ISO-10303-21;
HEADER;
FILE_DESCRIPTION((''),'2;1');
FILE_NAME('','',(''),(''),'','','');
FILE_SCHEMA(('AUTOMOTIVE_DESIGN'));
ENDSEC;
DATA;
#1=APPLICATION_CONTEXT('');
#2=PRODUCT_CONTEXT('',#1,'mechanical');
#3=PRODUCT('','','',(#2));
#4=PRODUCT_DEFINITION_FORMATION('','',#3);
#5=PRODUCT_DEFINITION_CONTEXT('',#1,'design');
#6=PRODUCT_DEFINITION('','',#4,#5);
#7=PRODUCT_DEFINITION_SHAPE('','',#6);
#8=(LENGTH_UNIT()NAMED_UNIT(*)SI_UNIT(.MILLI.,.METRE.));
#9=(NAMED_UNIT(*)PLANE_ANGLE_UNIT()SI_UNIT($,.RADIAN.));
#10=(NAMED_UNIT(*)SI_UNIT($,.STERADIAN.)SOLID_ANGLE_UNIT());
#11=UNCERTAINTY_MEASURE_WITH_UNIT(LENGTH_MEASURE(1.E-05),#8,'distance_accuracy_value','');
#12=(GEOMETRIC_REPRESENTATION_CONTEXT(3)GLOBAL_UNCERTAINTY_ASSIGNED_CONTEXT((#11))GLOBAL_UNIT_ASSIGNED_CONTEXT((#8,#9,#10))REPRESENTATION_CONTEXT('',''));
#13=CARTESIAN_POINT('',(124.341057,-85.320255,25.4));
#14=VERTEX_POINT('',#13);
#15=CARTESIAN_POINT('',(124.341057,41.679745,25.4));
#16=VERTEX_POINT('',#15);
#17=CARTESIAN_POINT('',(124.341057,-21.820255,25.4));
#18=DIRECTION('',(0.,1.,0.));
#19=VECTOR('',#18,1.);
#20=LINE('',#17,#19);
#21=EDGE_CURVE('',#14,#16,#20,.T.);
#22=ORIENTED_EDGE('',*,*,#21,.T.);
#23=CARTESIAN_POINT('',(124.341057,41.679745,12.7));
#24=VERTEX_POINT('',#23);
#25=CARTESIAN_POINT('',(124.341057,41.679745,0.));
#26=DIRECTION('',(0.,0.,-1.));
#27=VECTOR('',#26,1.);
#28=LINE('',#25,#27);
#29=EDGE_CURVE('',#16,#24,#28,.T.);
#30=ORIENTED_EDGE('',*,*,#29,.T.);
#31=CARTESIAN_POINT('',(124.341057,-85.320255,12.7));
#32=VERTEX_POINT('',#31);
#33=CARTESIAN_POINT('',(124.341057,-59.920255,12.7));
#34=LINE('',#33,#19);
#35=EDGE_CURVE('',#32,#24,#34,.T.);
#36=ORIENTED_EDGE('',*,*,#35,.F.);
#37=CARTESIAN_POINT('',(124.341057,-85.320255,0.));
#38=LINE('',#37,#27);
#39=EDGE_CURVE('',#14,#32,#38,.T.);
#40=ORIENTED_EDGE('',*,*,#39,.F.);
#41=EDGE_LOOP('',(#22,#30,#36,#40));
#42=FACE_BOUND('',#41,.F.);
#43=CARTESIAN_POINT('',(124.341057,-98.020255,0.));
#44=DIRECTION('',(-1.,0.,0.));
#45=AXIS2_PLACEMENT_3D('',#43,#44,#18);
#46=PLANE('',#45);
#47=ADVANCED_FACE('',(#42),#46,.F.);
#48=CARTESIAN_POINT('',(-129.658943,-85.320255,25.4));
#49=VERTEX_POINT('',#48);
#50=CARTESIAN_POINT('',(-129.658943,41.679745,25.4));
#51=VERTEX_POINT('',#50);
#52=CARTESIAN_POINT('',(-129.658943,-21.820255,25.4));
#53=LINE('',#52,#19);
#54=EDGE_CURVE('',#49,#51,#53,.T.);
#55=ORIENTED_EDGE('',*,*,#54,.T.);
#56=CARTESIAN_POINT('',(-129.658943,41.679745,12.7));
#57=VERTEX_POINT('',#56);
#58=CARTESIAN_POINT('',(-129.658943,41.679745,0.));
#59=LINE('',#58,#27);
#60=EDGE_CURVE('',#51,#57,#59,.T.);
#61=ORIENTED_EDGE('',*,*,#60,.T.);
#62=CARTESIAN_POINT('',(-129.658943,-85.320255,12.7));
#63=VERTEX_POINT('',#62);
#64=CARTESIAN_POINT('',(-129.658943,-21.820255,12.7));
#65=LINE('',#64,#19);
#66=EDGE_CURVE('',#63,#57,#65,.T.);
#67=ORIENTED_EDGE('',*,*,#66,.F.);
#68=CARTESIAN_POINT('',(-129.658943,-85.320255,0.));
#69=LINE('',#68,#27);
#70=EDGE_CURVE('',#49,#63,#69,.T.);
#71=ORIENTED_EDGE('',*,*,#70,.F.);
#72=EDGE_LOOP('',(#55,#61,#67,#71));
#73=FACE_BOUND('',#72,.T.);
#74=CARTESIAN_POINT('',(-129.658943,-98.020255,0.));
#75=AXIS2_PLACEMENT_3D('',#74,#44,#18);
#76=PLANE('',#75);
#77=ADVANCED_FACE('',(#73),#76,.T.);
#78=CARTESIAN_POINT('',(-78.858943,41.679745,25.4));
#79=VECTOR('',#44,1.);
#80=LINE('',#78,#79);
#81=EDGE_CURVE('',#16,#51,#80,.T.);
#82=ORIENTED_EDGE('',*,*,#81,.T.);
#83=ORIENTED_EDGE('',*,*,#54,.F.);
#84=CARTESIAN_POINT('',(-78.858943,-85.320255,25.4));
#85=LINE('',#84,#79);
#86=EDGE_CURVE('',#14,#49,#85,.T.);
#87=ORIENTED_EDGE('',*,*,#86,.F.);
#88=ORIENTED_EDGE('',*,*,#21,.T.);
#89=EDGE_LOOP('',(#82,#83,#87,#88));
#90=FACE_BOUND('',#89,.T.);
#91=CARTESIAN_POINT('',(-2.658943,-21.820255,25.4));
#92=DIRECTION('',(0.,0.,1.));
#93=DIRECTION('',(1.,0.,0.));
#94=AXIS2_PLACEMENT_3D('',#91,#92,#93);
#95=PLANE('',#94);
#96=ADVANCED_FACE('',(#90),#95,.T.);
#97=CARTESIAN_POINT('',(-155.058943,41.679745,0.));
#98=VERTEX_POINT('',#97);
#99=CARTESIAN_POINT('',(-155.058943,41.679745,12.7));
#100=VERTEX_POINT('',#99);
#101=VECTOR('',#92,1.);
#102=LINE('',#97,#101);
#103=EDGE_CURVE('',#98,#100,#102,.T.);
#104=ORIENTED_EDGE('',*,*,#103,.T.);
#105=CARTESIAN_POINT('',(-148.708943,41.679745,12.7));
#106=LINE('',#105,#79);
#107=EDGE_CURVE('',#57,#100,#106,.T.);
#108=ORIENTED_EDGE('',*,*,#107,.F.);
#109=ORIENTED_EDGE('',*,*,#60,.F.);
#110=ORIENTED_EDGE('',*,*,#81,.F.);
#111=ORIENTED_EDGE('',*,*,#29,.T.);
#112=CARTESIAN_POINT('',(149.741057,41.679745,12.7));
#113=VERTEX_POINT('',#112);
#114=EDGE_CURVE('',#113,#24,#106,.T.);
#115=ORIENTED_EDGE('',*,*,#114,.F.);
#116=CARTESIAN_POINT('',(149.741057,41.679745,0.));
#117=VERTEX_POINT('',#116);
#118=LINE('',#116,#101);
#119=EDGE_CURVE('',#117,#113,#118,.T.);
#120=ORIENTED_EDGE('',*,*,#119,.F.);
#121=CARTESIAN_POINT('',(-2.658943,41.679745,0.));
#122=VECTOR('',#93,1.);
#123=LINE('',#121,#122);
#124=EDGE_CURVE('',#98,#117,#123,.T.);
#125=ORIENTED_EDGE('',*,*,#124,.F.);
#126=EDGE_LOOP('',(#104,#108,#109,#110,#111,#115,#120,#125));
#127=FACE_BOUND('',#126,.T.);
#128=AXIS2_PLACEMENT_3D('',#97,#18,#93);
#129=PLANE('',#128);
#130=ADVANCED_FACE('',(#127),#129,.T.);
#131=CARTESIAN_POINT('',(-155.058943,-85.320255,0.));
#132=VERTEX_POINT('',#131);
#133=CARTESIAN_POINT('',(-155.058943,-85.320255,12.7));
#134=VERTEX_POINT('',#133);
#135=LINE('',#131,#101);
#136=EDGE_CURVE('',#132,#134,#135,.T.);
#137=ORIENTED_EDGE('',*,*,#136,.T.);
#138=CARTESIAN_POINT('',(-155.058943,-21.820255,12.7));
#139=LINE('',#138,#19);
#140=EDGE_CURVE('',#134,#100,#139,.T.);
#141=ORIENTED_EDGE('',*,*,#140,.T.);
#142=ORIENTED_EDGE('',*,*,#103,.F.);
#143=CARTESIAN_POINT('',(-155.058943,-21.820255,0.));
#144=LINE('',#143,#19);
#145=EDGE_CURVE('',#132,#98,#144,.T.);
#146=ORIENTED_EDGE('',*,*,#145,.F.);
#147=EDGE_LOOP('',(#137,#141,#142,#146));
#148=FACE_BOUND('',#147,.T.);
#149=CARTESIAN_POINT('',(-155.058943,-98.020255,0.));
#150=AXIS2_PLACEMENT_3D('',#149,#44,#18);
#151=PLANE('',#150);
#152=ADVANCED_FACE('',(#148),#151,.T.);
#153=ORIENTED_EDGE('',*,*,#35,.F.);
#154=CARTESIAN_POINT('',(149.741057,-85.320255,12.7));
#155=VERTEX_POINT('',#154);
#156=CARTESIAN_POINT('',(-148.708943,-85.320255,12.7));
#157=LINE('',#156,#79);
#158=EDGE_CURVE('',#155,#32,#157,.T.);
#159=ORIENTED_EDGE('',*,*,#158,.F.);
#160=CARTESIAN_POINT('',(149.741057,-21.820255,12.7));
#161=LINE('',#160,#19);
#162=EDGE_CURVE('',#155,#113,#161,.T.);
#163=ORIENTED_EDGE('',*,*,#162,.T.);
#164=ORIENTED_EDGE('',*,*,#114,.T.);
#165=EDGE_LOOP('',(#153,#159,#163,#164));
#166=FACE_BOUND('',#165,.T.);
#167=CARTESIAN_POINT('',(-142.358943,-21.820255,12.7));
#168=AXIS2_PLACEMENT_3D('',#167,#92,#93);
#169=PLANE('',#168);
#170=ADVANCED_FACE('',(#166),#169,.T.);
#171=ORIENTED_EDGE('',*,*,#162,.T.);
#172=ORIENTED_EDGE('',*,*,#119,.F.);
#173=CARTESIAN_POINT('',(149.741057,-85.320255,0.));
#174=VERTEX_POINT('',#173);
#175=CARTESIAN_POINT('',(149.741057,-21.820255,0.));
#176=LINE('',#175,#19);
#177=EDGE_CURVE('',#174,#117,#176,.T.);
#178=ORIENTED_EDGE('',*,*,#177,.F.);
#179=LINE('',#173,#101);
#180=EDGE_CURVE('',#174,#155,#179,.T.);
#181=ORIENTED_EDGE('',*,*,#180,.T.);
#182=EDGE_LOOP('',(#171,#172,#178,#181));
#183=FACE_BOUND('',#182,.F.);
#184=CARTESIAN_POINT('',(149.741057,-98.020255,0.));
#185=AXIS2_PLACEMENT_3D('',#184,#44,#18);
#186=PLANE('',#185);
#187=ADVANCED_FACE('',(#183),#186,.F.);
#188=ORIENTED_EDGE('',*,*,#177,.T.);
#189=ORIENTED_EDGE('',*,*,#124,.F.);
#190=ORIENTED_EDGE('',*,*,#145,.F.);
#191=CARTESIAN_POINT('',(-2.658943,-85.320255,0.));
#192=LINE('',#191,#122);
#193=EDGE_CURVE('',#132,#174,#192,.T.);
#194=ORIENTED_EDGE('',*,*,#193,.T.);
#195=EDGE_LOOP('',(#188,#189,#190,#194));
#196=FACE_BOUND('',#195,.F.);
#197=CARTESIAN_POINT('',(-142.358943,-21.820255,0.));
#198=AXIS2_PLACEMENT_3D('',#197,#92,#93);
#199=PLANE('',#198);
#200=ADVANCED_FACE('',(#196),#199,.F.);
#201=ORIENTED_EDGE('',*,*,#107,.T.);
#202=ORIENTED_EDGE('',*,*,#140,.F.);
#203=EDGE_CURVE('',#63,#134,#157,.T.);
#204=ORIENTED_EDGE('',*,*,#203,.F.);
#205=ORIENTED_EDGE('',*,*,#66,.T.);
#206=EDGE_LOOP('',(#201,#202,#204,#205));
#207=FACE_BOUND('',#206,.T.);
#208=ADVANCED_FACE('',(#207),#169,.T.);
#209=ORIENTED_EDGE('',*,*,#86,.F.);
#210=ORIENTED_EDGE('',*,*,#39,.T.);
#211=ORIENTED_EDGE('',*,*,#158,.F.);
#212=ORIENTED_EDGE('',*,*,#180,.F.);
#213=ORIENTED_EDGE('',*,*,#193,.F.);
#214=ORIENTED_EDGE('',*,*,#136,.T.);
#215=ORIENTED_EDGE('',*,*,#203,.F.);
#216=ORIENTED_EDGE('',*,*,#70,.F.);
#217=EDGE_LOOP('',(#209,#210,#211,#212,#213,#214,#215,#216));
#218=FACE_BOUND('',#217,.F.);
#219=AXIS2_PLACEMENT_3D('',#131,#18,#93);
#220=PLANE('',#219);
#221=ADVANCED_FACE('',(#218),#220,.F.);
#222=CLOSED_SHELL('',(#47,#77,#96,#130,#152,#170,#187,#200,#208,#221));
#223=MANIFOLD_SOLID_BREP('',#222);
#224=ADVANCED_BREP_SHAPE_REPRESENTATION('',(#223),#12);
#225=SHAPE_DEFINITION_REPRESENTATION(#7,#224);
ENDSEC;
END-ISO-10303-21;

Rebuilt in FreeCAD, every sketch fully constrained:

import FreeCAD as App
import Part
import Sketcher

V = App.Vector
Q = App.Units.Quantity

doc = App.newDocument("Part")
body = doc.addObject("PartDesign::Body", "Body")

# Sketch on XY plane
sketch1 = body.newObject("Sketcher::SketchObject", "Sketch")
sketch1.AttachmentSupport = (doc.getObject("XY_Plane"), [""])
sketch1.MapMode = "FlatFace"
sketch1.addGeometry([
    Part.LineSegment(V(-130, 54, 0), V(-130, -98, 0)),
    Part.LineSegment(V(-130, -98, 0), V(124, -98, 0)),
    Part.LineSegment(V(124, -98, 0), V(124, 54, 0)),
    Part.LineSegment(V(124, 54, 0), V(-130, 54, 0)),
], False)
sketch1.addConstraint([
    Sketcher.Constraint("Coincident", 0, 2, 1, 1),
    Sketcher.Constraint("Coincident", 1, 2, 2, 1),
    Sketcher.Constraint("Coincident", 2, 2, 3, 1),
    Sketcher.Constraint("Coincident", 3, 2, 0, 1),
    Sketcher.Constraint("Vertical", 0),
    Sketcher.Constraint("Horizontal", 1),
    Sketcher.Constraint("Vertical", 2),
    Sketcher.Constraint("Horizontal", 3),
    Sketcher.Constraint("DistanceX", 1, 1, 1, 2, Q("10 in")),
    Sketcher.Constraint("DistanceY", 0, 2, 0, 1, Q("6 in")),
    Sketcher.Constraint("DistanceX", 0, 2, -1, 1, 129.658943),
    Sketcher.Constraint("DistanceY", 0, 2, -1, 1, 98.020255),
])
pad1 = body.newObject("PartDesign::Pad", "Pad")
pad1.Profile = sketch1
pad1.Length = Q("1 in")

# Sketch on XY plane
sketch2 = body.newObject("Sketcher::SketchObject", "Sketch001")
sketch2.AttachmentSupport = (doc.getObject("XY_Plane"), [""])
sketch2.MapMode = "FlatFace"
sketch2.addGeometry([
    Part.LineSegment(V(-155, 54, 0), V(-155, -98, 0)),
    Part.LineSegment(V(-155, -98, 0), V(-130, -98, 0)),
    Part.LineSegment(V(-130, -98, 0), V(-130, 54, 0)),
    Part.LineSegment(V(-130, 54, 0), V(-155, 54, 0)),
], False)
sketch2.addConstraint([
    Sketcher.Constraint("Coincident", 0, 2, 1, 1),
    Sketcher.Constraint("Coincident", 1, 2, 2, 1),
    Sketcher.Constraint("Coincident", 2, 2, 3, 1),
    Sketcher.Constraint("Coincident", 3, 2, 0, 1),
    Sketcher.Constraint("Vertical", 0),
    Sketcher.Constraint("Horizontal", 1),
    Sketcher.Constraint("Vertical", 2),
    Sketcher.Constraint("Horizontal", 3),
    Sketcher.Constraint("DistanceX", 1, 1, 1, 2, Q("1 in")),
    Sketcher.Constraint("DistanceY", 0, 2, 0, 1, Q("6 in")),
    Sketcher.Constraint("DistanceX", 0, 2, -1, 1, 155.058943),
    Sketcher.Constraint("DistanceY", 0, 2, -1, 1, 98.020255),
])
pad2 = body.newObject("PartDesign::Pad", "Pad001")
pad2.Profile = sketch2
pad2.Length = Q("0.5 in")

# Sketch on XY plane
sketch3 = body.newObject("Sketcher::SketchObject", "Sketch002")
sketch3.AttachmentSupport = (doc.getObject("XY_Plane"), [""])
sketch3.MapMode = "FlatFace"
sketch3.addGeometry([
    Part.LineSegment(V(-155, 54, 0), V(-155, -98, 0)),
    Part.LineSegment(V(-155, -98, 0), V(150, -98, 0)),
    Part.LineSegment(V(150, -98, 0), V(150, 54, 0)),
    Part.LineSegment(V(150, 54, 0), V(-155, 54, 0)),
], False)
sketch3.addConstraint([
    Sketcher.Constraint("Coincident", 0, 2, 1, 1),
    Sketcher.Constraint("Coincident", 1, 2, 2, 1),
    Sketcher.Constraint("Coincident", 2, 2, 3, 1),
    Sketcher.Constraint("Coincident", 3, 2, 0, 1),
    Sketcher.Constraint("Vertical", 0),
    Sketcher.Constraint("Horizontal", 1),
    Sketcher.Constraint("Vertical", 2),
    Sketcher.Constraint("Horizontal", 3),
    Sketcher.Constraint("DistanceX", 1, 1, 1, 2, Q("12 in")),
    Sketcher.Constraint("DistanceY", 0, 2, 0, 1, Q("6 in")),
    Sketcher.Constraint("DistanceX", 0, 2, -1, 1, 155.058943),
    Sketcher.Constraint("DistanceY", 0, 2, -1, 1, 98.020255),
])
pad3 = body.newObject("PartDesign::Pad", "Pad002")
pad3.Profile = sketch3
pad3.Length = Q("0.5 in")

# Sketch on XY plane
sketch4 = body.newObject("Sketcher::SketchObject", "Sketch003")
sketch4.AttachmentSupport = (doc.getObject("XY_Plane"), [""])
sketch4.MapMode = "FlatFace"
sketch4.addGeometry([
    Part.LineSegment(V(-155, -98, 0), V(-155, -85, 0)),  # 0
    Part.LineSegment(V(-155, -85, 0), V(150, -85, 0)),  # 1
    Part.LineSegment(V(150, -85, 0), V(150, -98, 0)),  # 2
    Part.LineSegment(V(150, -98, 0), V(-155, -98, 0)),  # 3
    Part.LineSegment(V(-155, 42, 0), V(-155, 54, 0)),  # 4
    Part.LineSegment(V(-155, 54, 0), V(150, 54, 0)),  # 5
    Part.LineSegment(V(150, 54, 0), V(150, 42, 0)),  # 6
    Part.LineSegment(V(150, 42, 0), V(-155, 42, 0)),  # 7
], False)
sketch4.addConstraint([
    Sketcher.Constraint("Coincident", 0, 2, 1, 1),
    Sketcher.Constraint("Coincident", 1, 2, 2, 1),
    Sketcher.Constraint("Coincident", 2, 2, 3, 1),
    Sketcher.Constraint("Coincident", 3, 2, 0, 1),
    Sketcher.Constraint("Coincident", 4, 2, 5, 1),
    Sketcher.Constraint("Coincident", 5, 2, 6, 1),
    Sketcher.Constraint("Coincident", 6, 2, 7, 1),
    Sketcher.Constraint("Coincident", 7, 2, 4, 1),
    Sketcher.Constraint("Vertical", 0),
    Sketcher.Constraint("Horizontal", 1),
    Sketcher.Constraint("Vertical", 2),
    Sketcher.Constraint("Horizontal", 3),
    Sketcher.Constraint("Vertical", 4),
    Sketcher.Constraint("Horizontal", 5),
    Sketcher.Constraint("Vertical", 6),
    Sketcher.Constraint("Horizontal", 7),
    Sketcher.Constraint("Vertical", 3, 2, 4, 2),
    Sketcher.Constraint("Vertical", 2, 2, 5, 2),
    Sketcher.Constraint("Equal", 2, 4),
    Sketcher.Constraint("DistanceX", 1, 1, 1, 2, Q("12 in")),
    Sketcher.Constraint("DistanceY", 0, 1, 0, 2, Q("0.5 in")),
    Sketcher.Constraint("DistanceY", 3, 2, 4, 2, Q("6 in")),
    Sketcher.Constraint("DistanceX", 0, 2, -1, 1, 155.058943),
    Sketcher.Constraint("DistanceY", 0, 2, -1, 1, 85.320255),
])
pocket1 = body.newObject("PartDesign::Pocket", "Pocket")
pocket1.Profile = sketch4
pocket1.Length = Q("6 in")
pocket1.Reversed = True

doc.recompute()
